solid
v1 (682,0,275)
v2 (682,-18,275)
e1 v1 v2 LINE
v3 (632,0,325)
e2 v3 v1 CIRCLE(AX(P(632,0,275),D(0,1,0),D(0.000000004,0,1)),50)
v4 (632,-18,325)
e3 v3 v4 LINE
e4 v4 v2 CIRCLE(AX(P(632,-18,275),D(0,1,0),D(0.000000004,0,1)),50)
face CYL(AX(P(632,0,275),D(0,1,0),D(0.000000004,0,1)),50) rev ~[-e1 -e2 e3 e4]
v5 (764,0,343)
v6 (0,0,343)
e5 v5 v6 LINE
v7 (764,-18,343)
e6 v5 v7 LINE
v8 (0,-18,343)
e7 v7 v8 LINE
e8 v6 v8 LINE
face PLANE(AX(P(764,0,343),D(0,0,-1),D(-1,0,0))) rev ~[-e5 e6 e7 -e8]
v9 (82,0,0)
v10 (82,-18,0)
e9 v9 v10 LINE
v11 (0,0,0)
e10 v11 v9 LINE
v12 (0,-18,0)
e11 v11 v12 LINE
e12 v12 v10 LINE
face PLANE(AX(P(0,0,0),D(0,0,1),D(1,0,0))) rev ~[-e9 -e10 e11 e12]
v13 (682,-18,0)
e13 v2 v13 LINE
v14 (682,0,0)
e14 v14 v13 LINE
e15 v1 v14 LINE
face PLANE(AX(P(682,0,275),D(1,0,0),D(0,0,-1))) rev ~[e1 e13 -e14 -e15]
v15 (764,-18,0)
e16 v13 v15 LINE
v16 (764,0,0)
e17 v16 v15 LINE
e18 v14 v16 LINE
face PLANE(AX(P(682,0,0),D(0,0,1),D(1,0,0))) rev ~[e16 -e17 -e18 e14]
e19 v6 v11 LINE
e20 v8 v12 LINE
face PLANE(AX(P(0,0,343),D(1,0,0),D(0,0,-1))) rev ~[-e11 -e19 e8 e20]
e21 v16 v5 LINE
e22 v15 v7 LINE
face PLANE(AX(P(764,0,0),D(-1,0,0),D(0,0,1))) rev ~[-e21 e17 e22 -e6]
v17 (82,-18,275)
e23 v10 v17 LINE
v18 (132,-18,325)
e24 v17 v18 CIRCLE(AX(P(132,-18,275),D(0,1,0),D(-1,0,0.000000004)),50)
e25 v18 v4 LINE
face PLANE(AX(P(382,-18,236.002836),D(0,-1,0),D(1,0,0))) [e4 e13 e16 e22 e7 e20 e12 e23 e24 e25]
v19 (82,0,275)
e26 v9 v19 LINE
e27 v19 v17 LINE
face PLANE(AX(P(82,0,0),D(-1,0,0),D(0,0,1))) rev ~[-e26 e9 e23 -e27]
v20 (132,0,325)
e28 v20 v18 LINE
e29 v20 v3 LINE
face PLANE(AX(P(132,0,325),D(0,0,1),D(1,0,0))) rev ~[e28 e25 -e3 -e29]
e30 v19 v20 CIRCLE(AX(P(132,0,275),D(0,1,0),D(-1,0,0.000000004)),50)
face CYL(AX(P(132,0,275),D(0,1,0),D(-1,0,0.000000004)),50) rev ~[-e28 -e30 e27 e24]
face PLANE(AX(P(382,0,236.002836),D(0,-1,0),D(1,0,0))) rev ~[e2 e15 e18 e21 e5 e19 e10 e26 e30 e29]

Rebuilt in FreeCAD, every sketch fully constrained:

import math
import FreeCAD as App
import Part
import Sketcher

doc = App.newDocument("Part")
body = doc.addObject("PartDesign::Body", "Body")

sketch1 = body.newObject("Sketcher::SketchObject", "Sketch")
sketch1.AttachmentSupport = (doc.getObject("XZ_Plane"), [""])
sketch1.MapMode = "FlatFace"
sketch1.addGeometry(Part.LineSegment(App.Vector(0, 343, 0), App.Vector(0, 0, 0)), False)
sketch1.addGeometry(Part.LineSegment(App.Vector(0, 0, 0), App.Vector(82, 0, 0)), False)
sketch1.addGeometry(Part.LineSegment(App.Vector(82, 0, 0), App.Vector(82, 275, 0)), False)
sketch1.addGeometry(Part.ArcOfCircle(Part.Circle(App.Vector(132, 275, 0), App.Vector(0, 0, 1), 50), math.radians(90), math.radians(180)), False)
sketch1.addGeometry(Part.LineSegment(App.Vector(132, 325, 0), App.Vector(632, 325, 0)), False)
sketch1.addGeometry(Part.ArcOfCircle(Part.Circle(App.Vector(632, 275, 0), App.Vector(0, 0, 1), 50), math.radians(0), math.radians(90)), False)
sketch1.addGeometry(Part.LineSegment(App.Vector(682, 275, 0), App.Vector(682, 0, 0)), False)
sketch1.addGeometry(Part.LineSegment(App.Vector(682, 0, 0), App.Vector(764, 0, 0)), False)
sketch1.addGeometry(Part.LineSegment(App.Vector(764, 0, 0), App.Vector(764, 343, 0)), False)
sketch1.addGeometry(Part.LineSegment(App.Vector(764, 343, 0), App.Vector(0, 343, 0)), False)
sketch1.addConstraint(Sketcher.Constraint("Coincident", 0, 2, 1, 1))
sketch1.addConstraint(Sketcher.Constraint("Coincident", 1, 2, 2, 1))
sketch1.addConstraint(Sketcher.Constraint("Tangent", 2, 2, 3, 2))
sketch1.addConstraint(Sketcher.Constraint("Tangent", 3, 1, 4, 1))
sketch1.addConstraint(Sketcher.Constraint("Tangent", 4, 2, 5, 2))
sketch1.addConstraint(Sketcher.Constraint("Tangent", 5, 1, 6, 1))
sketch1.addConstraint(Sketcher.Constraint("Coincident", 6, 2, 7, 1))
sketch1.addConstraint(Sketcher.Constraint("Coincident", 7, 2, 8, 1))
sketch1.addConstraint(Sketcher.Constraint("Coincident", 8, 2, 9, 1))
sketch1.addConstraint(Sketcher.Constraint("Coincident", 9, 2, 0, 1))
sketch1.addConstraint(Sketcher.Constraint("Vertical", 0))
sketch1.addConstraint(Sketcher.Constraint("Horizontal", 1))
sketch1.addConstraint(Sketcher.Constraint("Vertical", 2))
sketch1.addConstraint(Sketcher.Constraint("Horizontal", 4))
sketch1.addConstraint(Sketcher.Constraint("Vertical", 6))
sketch1.addConstraint(Sketcher.Constraint("Horizontal", 7))
sketch1.addConstraint(Sketcher.Constraint("Vertical", 8))
sketch1.addConstraint(Sketcher.Constraint("Horizontal", 9))
sketch1.addConstraint(Sketcher.Constraint("Coincident", 0, 2, -1, 1))
sketch1.addConstraint(Sketcher.Constraint("Equal", 3, 5))
sketch1.addConstraint(Sketcher.Constraint("PointOnObject", 6, 2, -1))
sketch1.addConstraint(Sketcher.Constraint("Equal", 1, 7))
sketch1.addConstraint(Sketcher.Constraint("Radius", 3, 50.0))
sketch1.addConstraint(Sketcher.Constraint("DistanceX", 1, 1, 1, 2, 82.0))
sketch1.addConstraint(Sketcher.Constraint("DistanceX", 4, 1, 4, 2, 500.0))
sketch1.addConstraint(Sketcher.Constraint("DistanceY", 0, 2, 0, 1, 343.0))
sketch1.addConstraint(Sketcher.Constraint("DistanceY", 2, 1, 2, 2, 275.0))
pad1 = body.newObject("PartDesign::Pad", "Pad")
pad1.Profile = sketch1
pad1.Length = 18

doc.recompute()
